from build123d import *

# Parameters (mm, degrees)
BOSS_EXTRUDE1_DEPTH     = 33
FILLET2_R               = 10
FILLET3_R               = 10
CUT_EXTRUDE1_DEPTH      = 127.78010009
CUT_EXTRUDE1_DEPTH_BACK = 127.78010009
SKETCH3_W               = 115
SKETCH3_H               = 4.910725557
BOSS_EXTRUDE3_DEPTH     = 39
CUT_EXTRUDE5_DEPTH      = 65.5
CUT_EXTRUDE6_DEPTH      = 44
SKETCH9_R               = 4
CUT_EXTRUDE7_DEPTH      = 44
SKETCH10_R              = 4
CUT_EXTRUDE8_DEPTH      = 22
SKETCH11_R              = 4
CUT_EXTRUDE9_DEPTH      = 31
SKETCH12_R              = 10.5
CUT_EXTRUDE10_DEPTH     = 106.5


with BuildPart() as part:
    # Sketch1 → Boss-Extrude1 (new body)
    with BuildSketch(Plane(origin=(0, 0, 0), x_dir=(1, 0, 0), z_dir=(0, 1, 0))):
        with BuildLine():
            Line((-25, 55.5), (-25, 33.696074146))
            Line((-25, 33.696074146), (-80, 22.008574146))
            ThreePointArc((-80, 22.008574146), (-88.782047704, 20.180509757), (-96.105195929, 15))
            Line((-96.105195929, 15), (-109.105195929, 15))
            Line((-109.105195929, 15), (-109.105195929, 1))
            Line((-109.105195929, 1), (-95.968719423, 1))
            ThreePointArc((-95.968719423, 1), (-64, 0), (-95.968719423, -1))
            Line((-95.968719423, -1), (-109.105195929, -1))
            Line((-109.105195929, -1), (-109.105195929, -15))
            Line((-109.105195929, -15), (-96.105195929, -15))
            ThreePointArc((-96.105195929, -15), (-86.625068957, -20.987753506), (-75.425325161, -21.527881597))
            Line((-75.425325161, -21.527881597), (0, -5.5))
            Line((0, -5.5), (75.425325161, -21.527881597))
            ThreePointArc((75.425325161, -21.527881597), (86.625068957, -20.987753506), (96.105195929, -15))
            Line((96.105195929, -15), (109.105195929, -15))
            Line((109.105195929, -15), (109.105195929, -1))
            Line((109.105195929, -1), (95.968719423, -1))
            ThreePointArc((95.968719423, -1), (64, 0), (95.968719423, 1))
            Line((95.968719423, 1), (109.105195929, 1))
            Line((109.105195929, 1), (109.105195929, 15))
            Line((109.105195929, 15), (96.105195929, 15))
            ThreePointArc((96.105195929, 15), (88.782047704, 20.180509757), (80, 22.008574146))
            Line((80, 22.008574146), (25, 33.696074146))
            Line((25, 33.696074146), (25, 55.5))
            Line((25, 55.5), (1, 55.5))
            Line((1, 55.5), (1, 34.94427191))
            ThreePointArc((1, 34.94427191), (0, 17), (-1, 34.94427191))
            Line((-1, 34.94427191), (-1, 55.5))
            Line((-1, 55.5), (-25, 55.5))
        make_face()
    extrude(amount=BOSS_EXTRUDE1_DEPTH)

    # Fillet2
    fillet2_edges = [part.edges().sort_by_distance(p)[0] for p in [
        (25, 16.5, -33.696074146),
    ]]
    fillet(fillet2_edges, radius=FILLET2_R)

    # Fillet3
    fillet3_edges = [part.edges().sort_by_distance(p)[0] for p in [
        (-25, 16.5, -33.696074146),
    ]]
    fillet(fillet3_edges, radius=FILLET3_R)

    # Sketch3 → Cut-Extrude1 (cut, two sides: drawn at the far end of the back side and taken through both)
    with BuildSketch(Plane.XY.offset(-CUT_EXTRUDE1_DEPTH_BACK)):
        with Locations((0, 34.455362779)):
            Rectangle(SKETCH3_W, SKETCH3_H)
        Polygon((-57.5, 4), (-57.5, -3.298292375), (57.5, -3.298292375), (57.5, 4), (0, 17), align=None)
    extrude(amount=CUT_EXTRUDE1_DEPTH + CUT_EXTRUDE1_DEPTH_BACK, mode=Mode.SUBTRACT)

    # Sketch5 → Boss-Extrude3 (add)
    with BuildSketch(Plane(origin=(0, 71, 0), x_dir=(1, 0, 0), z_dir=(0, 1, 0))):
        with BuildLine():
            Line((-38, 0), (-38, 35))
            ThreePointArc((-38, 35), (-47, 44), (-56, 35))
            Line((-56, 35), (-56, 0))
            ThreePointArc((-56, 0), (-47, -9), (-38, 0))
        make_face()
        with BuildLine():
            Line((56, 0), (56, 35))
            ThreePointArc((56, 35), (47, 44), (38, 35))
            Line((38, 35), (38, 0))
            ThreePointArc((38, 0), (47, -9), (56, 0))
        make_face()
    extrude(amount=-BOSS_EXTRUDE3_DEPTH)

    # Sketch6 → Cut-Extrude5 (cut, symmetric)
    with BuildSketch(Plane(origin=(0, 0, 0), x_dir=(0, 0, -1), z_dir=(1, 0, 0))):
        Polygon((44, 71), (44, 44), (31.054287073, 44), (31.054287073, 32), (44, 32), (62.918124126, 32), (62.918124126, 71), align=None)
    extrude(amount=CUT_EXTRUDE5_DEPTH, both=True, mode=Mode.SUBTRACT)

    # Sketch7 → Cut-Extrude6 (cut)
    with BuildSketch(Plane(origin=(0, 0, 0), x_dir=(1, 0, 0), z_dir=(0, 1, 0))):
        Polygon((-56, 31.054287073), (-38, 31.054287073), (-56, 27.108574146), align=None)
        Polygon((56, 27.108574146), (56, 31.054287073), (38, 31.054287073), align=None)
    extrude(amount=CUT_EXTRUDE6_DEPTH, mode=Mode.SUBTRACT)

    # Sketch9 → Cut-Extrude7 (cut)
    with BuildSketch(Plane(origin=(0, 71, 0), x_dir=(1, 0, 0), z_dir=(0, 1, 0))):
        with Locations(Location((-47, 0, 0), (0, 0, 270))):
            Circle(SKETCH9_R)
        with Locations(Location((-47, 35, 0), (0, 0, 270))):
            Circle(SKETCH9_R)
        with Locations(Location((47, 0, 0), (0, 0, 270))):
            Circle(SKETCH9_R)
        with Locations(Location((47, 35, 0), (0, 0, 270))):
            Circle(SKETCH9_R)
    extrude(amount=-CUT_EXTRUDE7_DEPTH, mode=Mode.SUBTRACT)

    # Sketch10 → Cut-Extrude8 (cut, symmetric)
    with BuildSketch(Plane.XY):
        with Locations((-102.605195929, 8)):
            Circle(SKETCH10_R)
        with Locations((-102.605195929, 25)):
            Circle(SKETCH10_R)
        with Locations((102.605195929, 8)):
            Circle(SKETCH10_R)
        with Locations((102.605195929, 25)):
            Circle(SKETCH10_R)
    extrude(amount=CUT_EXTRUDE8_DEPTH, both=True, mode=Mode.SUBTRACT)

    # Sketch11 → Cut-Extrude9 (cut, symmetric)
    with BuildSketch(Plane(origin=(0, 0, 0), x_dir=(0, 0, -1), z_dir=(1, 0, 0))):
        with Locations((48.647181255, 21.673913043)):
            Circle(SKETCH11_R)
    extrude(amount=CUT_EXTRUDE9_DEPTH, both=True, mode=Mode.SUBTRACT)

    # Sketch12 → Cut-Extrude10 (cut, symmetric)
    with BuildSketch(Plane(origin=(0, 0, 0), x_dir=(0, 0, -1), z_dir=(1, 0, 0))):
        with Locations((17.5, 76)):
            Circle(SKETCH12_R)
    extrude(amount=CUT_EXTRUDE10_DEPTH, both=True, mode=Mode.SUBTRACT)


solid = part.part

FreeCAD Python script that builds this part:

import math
import FreeCAD as App
import Part
import Sketcher

V = App.Vector


def edges_at(feature, points):
    """Names of the edges that pass closest to the given points."""
    edges = feature.Shape.Edges
    near = lambda p: min(range(len(edges)), key=lambda i: edges[i].distToShape(Part.Vertex(*p))[0])
    return sorted({f"Edge{near(p) + 1}" for p in points})

doc = App.newDocument("Part")
body = doc.addObject("PartDesign::Body", "Body")

# Sketch on XZ plane
sketch1 = doc.addObject("Sketcher::SketchObject", "Sketch")
body.addObject(sketch1)
sketch1.AttachmentSupport = (doc.XZ_Plane, [""])
sketch1.MapMode = "FlatFace"
sketch1.addGeometry([
    Part.LineSegment(V(-25, -55.5, 0), V(-25, -33.696074, 0)),  # 0
    Part.LineSegment(V(-25, -33.696074, 0), V(-80, -22.008574, 0)),  # 1
    Part.ArcOfCircle(Part.Circle(V(-80, 0, 0), V(0, 0, 1), 22.008574), math.radians(-137.034915), math.radians(-90)),  # 2
    Part.LineSegment(V(-96.105196, -15, 0), V(-109.105196, -15, 0)),  # 3
    Part.LineSegment(V(-109.105196, -15, 0), V(-109.105196, -1, 0)),  # 4
    Part.LineSegment(V(-109.105196, -1, 0), V(-95.968719, -1, 0)),  # 5
    Part.ArcOfCircle(Part.Circle(V(-80, 0, 0), V(0, 0, 1), 16), math.radians(-176.416678), math.radians(176.416678)),  # 6
    Part.LineSegment(V(-95.968719, 1, 0), V(-109.105196, 1, 0)),  # 7
    Part.LineSegment(V(-109.105196, 1, 0), V(-109.105196, 15, 0)),  # 8
    Part.LineSegment(V(-109.105196, 15, 0), V(-96.105196, 15, 0)),  # 9
    Part.ArcOfCircle(Part.Circle(V(-80, 0, 0), V(0, 0, 1), 22.008574), math.radians(78.003101), math.radians(137.034915)),  # 10
    Part.LineSegment(V(-75.425325, 21.527882, 0), V(0, 5.5, 0)),  # 11
    Part.LineSegment(V(0, 5.5, 0), V(75.425325, 21.527882, 0)),  # 12
    Part.ArcOfCircle(Part.Circle(V(80, 0, 0), V(0, 0, 1), 22.008574), math.radians(42.965085), math.radians(101.996899)),  # 13
    Part.LineSegment(V(96.105196, 15, 0), V(109.105196, 15, 0)),  # 14
    Part.LineSegment(V(109.105196, 15, 0), V(109.105196, 1, 0)),  # 15
    Part.LineSegment(V(109.105196, 1, 0), V(95.968719, 1, 0)),  # 16
    Part.ArcOfCircle(Part.Circle(V(80, 0, 0), V(0, 0, 1), 16), math.radians(3.583322), math.radians(356.416678)),  # 17
    Part.LineSegment(V(95.968719, -1, 0), V(109.105196, -1, 0)),  # 18
    Part.LineSegment(V(109.105196, -1, 0), V(109.105196, -15, 0)),  # 19
    Part.LineSegment(V(109.105196, -15, 0), V(96.105196, -15, 0)),  # 20
    Part.ArcOfCircle(Part.Circle(V(80, 0, 0), V(0, 0, 1), 22.008574), math.radians(-90), math.radians(-42.965085)),  # 21
    Part.LineSegment(V(80, -22.008574, 0), V(25, -33.696074, 0)),  # 22
    Part.LineSegment(V(25, -33.696074, 0), V(25, -55.5, 0)),  # 23
    Part.LineSegment(V(25, -55.5, 0), V(1, -55.5, 0)),  # 24
    Part.LineSegment(V(1, -55.5, 0), V(1, -34.944272, 0)),  # 25
    Part.ArcOfCircle(Part.Circle(V(0, -26, 0), V(0, 0, 1), 9), math.radians(-83.62063), math.radians(263.62063)),  # 26
    Part.LineSegment(V(-1, -34.944272, 0), V(-1, -55.5, 0)),  # 27
    Part.LineSegment(V(-1, -55.5, 0), V(-25, -55.5, 0)),  # 28
], False)
sketch1.addConstraint([
    Sketcher.Constraint("Coincident", 0, 2, 1, 1),
    Sketcher.Constraint("Coincident", 1, 2, 2, 2),
    Sketcher.Constraint("Coincident", 2, 1, 3, 1),
    Sketcher.Constraint("Coincident", 3, 2, 4, 1),
    Sketcher.Constraint("Coincident", 4, 2, 5, 1),
    Sketcher.Constraint("Coincident", 5, 2, 6, 1),
    Sketcher.Constraint("Coincident", 6, 2, 7, 1),
    Sketcher.Constraint("Coincident", 7, 2, 8, 1),
    Sketcher.Constraint("Coincident", 8, 2, 9, 1),
    Sketcher.Constraint("Coincident", 9, 2, 10, 2),
    Sketcher.Constraint("Tangent", 10, 1, 11, 1),
    Sketcher.Constraint("Coincident", 11, 2, 12, 1),
    Sketcher.Constraint("Tangent", 12, 2, 13, 2),
    Sketcher.Constraint("Coincident", 13, 1, 14, 1),
    Sketcher.Constraint("Coincident", 14, 2, 15, 1),
    Sketcher.Constraint("Coincident", 15, 2, 16, 1),
    Sketcher.Constraint("Coincident", 16, 2, 17, 1),
    Sketcher.Constraint("Coincident", 17, 2, 18, 1),
    Sketcher.Constraint("Coincident", 18, 2, 19, 1),
    Sketcher.Constraint("Coincident", 19, 2, 20, 1),
    Sketcher.Constraint("Coincident", 20, 2, 21, 2),
    Sketcher.Constraint("Coincident", 21, 1, 22, 1),
    Sketcher.Constraint("Coincident", 22, 2, 23, 1),
    Sketcher.Constraint("Coincident", 23, 2, 24, 1),
    Sketcher.Constraint("Coincident", 24, 2, 25, 1),
    Sketcher.Constraint("Coincident", 25, 2, 26, 1),
    Sketcher.Constraint("Coincident", 26, 2, 27, 1),
    Sketcher.Constraint("Coincident", 27, 2, 28, 1),
    Sketcher.Constraint("Coincident", 28, 2, 0, 1),
    Sketcher.Constraint("Vertical", 0),
    Sketcher.Constraint("Horizontal", 3),
    Sketcher.Constraint("Vertical", 4),
    Sketcher.Constraint("Horizontal", 5),
    Sketcher.Constraint("Horizontal", 7),
    Sketcher.Constraint("Vertical", 8),
    Sketcher.Constraint("Horizontal", 9),
    Sketcher.Constraint("Horizontal", 14),
    Sketcher.Constraint("Vertical", 15),
    Sketcher.Constraint("Horizontal", 16),
    Sketcher.Constraint("Horizontal", 18),
    Sketcher.Constraint("Vertical", 19),
    Sketcher.Constraint("Horizontal", 20),
    Sketcher.Constraint("Vertical", 23),
    Sketcher.Constraint("Horizontal", 24),
    Sketcher.Constraint("Vertical", 25),
    Sketcher.Constraint("Vertical", 27),
    Sketcher.Constraint("Horizontal", 28),
    Sketcher.Constraint("Coincident", 6, 3, 2, 3),
    Sketcher.Constraint("Coincident", 10, 3, 2, 3),
    Sketcher.Constraint("Coincident", 17, 3, 13, 3),
    Sketcher.Constraint("Coincident", 21, 3, 13, 3),
    Sketcher.Constraint("Equal", 2, 10),
    Sketcher.Constraint("Equal", 10, 13),
    Sketcher.Constraint("Equal", 6, 17),
    Sketcher.Constraint("Equal", 13, 21),
    Sketcher.Constraint("Symmetric", 2, 3, 13, 3, -1, 1),
    Sketcher.Constraint("Symmetric", 3, 2, 14, 2, -1, 1),
    Sketcher.Constraint("Symmetric", 7, 2, 18, 2, -1, 1),
    Sketcher.Constraint("Symmetric", 10, 1, 12, 2, -2),
    Sketcher.Constraint("Symmetric", 8, 2, 14, 2, -2),
    Sketcher.Constraint("Symmetric", 0, 2, 22, 2, -2),
    Sketcher.Constraint("Symmetric", 25, 2, 26, 2, -2),
    Sketcher.Constraint("Parallel", 1, 11),
    Sketcher.Constraint("Parallel", 12, 22),
    Sketcher.Constraint("Horizontal", 7, 2, 15, 2),
    Sketcher.Constraint("Horizontal", 5, 2, 17, 2),
    Sketcher.Constraint("Horizontal", 3, 2, 19, 2),
    Sketcher.Constraint("Horizontal", 24, 2, 27, 2),
    Sketcher.Constraint("Vertical", 10, 3, 1, 2),
    Sketcher.Constraint("Radius", 6, 16.0),
    Sketcher.Constraint("Radius", 26, 9.0),
    Sketcher.Constraint("DistanceX", 3, 2, 3, 1, 13.0),
    Sketcher.Constraint("DistanceX", 24, 2, 24, 1, 24.0),
    Sketcher.Constraint("DistanceY", 4, 1, 4, 2, 14.0),
    Sketcher.Constraint("DistanceX", 2, 3, -1, 1, 80.0),
    Sketcher.Constraint("DistanceY", 26, 3, -1, 1, 26.0),
    Sketcher.Constraint("DistanceX", 0, 2, -1, 1, 25.0),
    Sketcher.Constraint("DistanceY", 2, 1, -1, 1, 15.0),
    Sketcher.Constraint("DistanceY", 23, 2, 11, 2, 61.0),
    Sketcher.Constraint("DistanceY", -1, 1, 11, 2, 5.5),
    Sketcher.Constraint("Radius", 2, 22.008574),
])
pad1 = doc.addObject("PartDesign::Pad", "Pad")
body.addObject(pad1)
pad1.Profile = sketch1
pad1.Length = 33
pad1.Reversed = True
doc.recompute()

fillet = doc.addObject("PartDesign::Fillet", "Fillet")
body.addObject(fillet)
fillet.Base = (pad1, edges_at(pad1, [(25, 16.5, -33.696)]))
fillet.Radius = 10
doc.recompute()

fillet2 = doc.addObject("PartDesign::Fillet", "Fillet001")
body.addObject(fillet2)
fillet2.Base = (fillet, edges_at(fillet, [(-25, 16.5, -33.696)]))
fillet2.Radius = 10

# Sketch on XY plane
sketch2 = doc.addObject("Sketcher::SketchObject", "Sketch001")
body.addObject(sketch2)
sketch2.AttachmentSupport = (doc.XY_Plane, [""])
sketch2.MapMode = "FlatFace"
sketch2.addGeometry([
    Part.LineSegment(V(-57.5, 36.910726, 0), V(-57.5, 32, 0)),  # 0
    Part.LineSegment(V(-57.5, 32, 0), V(57.5, 32, 0)),  # 1
    Part.LineSegment(V(57.5, 32, 0), V(57.5, 36.910726, 0)),  # 2
    Part.LineSegment(V(57.5, 36.910726, 0), V(-57.5, 36.910726, 0)),  # 3
    Part.LineSegment(V(-57.5, 4, 0), V(-57.5, -3.298292, 0)),  # 4
    Part.LineSegment(V(-57.5, -3.298292, 0), V(57.5, -3.298292, 0)),  # 5
    Part.LineSegment(V(57.5, -3.298292, 0), V(57.5, 4, 0)),  # 6
    Part.LineSegment(V(57.5, 4, 0), V(0, 17, 0)),  # 7
    Part.LineSegment(V(0, 17, 0), V(-57.5, 4, 0)),  # 8
], False)
sketch2.addConstraint([
    Sketcher.Constraint("Coincident", 0, 2, 1, 1),
    Sketcher.Constraint("Coincident", 1, 2, 2, 1),
    Sketcher.Constraint("Coincident", 2, 2, 3, 1),
    Sketcher.Constraint("Coincident", 3, 2, 0, 1),
    Sketcher.Constraint("Coincident", 4, 2, 5, 1),
    Sketcher.Constraint("Coincident", 5, 2, 6, 1),
    Sketcher.Constraint("Coincident", 6, 2, 7, 1),
    Sketcher.Constraint("Coincident", 7, 2, 8, 1),
    Sketcher.Constraint("Coincident", 8, 2, 4, 1),
    Sketcher.Constraint("Vertical", 0),
    Sketcher.Constraint("Horizontal", 1),
    Sketcher.Constraint("Vertical", 2),
    Sketcher.Constraint("Horizontal", 3),
    Sketcher.Constraint("Vertical", 4),
    Sketcher.Constraint("Horizontal", 5),
    Sketcher.Constraint("Vertical", 6),
    Sketcher.Constraint("Symmetric", 6, 2, 8, 2, -2),
    Sketcher.Constraint("PointOnObject", 7, 2, -2),
    Sketcher.Constraint("Vertical", 3, 2, 4, 2),
    Sketcher.Constraint("Vertical", 2, 2, 5, 2),
    Sketcher.Constraint("DistanceX", 1, 1, 1, 2, 115.0),
    Sketcher.Constraint("DistanceY", -1, 1, 0, 2, 32.0),
    Sketcher.Constraint("DistanceY", -1, 1, 6, 2, 4.0),
    Sketcher.Constraint("DistanceY", -1, 1, 7, 2, 17.0),
    Sketcher.Constraint("DistanceY", 0, 2, 0, 1, 4.910726),
    Sketcher.Constraint("DistanceY", 4, 2, 4, 1, 7.298292),
])
pocket1 = doc.addObject("PartDesign::Pocket", "Pocket")
body.addObject(pocket1)
pocket1.Profile = sketch2
pocket1.Type = "ThroughAll"
pocket1.Midplane = True

# Sketch on XZ plane
sketch3 = doc.addObject("Sketcher::SketchObject", "Sketch002")
body.addObject(sketch3)
sketch3.AttachmentSupport = (doc.XZ_Plane, [""])
sketch3.MapMode = "FlatFace"
sketch3.AttachmentOffset = App.Placement(V(0, 0, -71), App.Rotation())
sketch3.addGeometry([
    Part.LineSegment(V(-38, 0, 0), V(-38, -35, 0)),  # 0
    Part.ArcOfCircle(Part.Circle(V(-47, -35, 0), V(0, 0, 1), 9), math.radians(180), math.radians(360)),  # 1
    Part.LineSegment(V(-56, -35, 0), V(-56, 0, 0)),  # 2
    Part.ArcOfCircle(Part.Circle(V(-47, 0, 0), V(0, 0, 1), 9), math.radians(0), math.radians(180)),  # 3
    Part.LineSegment(V(56, 0, 0), V(56, -35, 0)),  # 4
    Part.ArcOfCircle(Part.Circle(V(47, -35, 0), V(0, 0, 1), 9), math.radians(180), math.radians(360)),  # 5
    Part.LineSegment(V(38, -35, 0), V(38, 0, 0)),  # 6
    Part.ArcOfCircle(Part.Circle(V(47, 0, 0), V(0, 0, 1), 9), math.radians(0), math.radians(180)),  # 7
], False)
sketch3.addConstraint([
    Sketcher.Constraint("Tangent", 0, 2, 1, 2),
    Sketcher.Constraint("Tangent", 1, 1, 2, 1),
    Sketcher.Constraint("Tangent", 2, 2, 3, 2),
    Sketcher.Constraint("Tangent", 3, 1, 0, 1),
    Sketcher.Constraint("Tangent", 4, 2, 5, 2),
    Sketcher.Constraint("Tangent", 5, 1, 6, 1),
    Sketcher.Constraint("Tangent", 6, 2, 7, 2),
    Sketcher.Constraint("Tangent", 7, 1, 4, 1),
    Sketcher.Constraint("Vertical", 0),
    Sketcher.Constraint("Vertical", 2),
    Sketcher.Constraint("Vertical", 4),
    Sketcher.Constraint("Vertical", 6),
    Sketcher.Constraint("Equal", 3, 5),
    Sketcher.Constraint("Symmetric", 3, 3, 7, 3, -1, 1),
    Sketcher.Constraint("PointOnObject", 3, 3, -1),
    Sketcher.Constraint("Horizontal", 1, 3, 5, 3),
    Sketcher.Constraint("Radius", 1, 9.0),
    Sketcher.Constraint("DistanceY", 0, 2, 0, 1, 35.0),
    Sketcher.Constraint("DistanceX", 1, 3, -1, 1, 47.0),
])
pad2 = doc.addObject("PartDesign::Pad", "Pad001")
body.addObject(pad2)
pad2.Profile = sketch3
pad2.Length = 39

# Sketch on YZ plane
sketch4 = doc.addObject("Sketcher::SketchObject", "Sketch003")
body.addObject(sketch4)
sketch4.AttachmentSupport = (doc.YZ_Plane, [""])
sketch4.MapMode = "FlatFace"
sketch4.addGeometry([
    Part.LineSegment(V(71, -44, 0), V(44, -44, 0)),  # 0
    Part.LineSegment(V(44, -44, 0), V(44, -31.054287, 0)),  # 1
    Part.LineSegment(V(44, -31.054287, 0), V(32, -31.054287, 0)),  # 2
    Part.LineSegment(V(32, -31.054287, 0), V(32, -62.918124, 0)),  # 3
    Part.LineSegment(V(32, -62.918124, 0), V(71, -62.918124, 0)),  # 4
    Part.LineSegment(V(71, -62.918124, 0), V(71, -44, 0)),  # 5
], False)
sketch4.addConstraint([
    Sketcher.Constraint("Coincident", 0, 2, 1, 1),
    Sketcher.Constraint("Coincident", 1, 2, 2, 1),
    Sketcher.Constraint("Coincident", 2, 2, 3, 1),
    Sketcher.Constraint("Coincident", 3, 2, 4, 1),
    Sketcher.Constraint("Coincident", 4, 2, 5, 1),
    Sketcher.Constraint("Coincident", 5, 2, 0, 1),
    Sketcher.Constraint("Horizontal", 0),
    Sketcher.Constraint("Vertical", 1),
    Sketcher.Constraint("Horizontal", 2),
    Sketcher.Constraint("Vertical", 3),
    Sketcher.Constraint("Horizontal", 4),
    Sketcher.Constraint("Vertical", 5),
    Sketcher.Constraint("DistanceX", 0, 2, 0, 1, 27.0),
    Sketcher.Constraint("DistanceX", 2, 2, 2, 1, 12.0),
    Sketcher.Constraint("DistanceX", -1, 1, 0, 2, 44.0),
    Sketcher.Constraint("DistanceY", 0, 2, -1, 1, 44.0),
    Sketcher.Constraint("DistanceY", 1, 1, 1, 2, 12.945713),
    Sketcher.Constraint("DistanceY", 3, 2, 3, 1, 31.863837),
])
pocket2 = doc.addObject("PartDesign::Pocket", "Pocket001")
body.addObject(pocket2)
pocket2.Profile = sketch4
pocket2.Length = 131
pocket2.Midplane = True

# Sketch on XZ plane
sketch5 = doc.addObject("Sketcher::SketchObject", "Sketch004")
body.addObject(sketch5)
sketch5.AttachmentSupport = (doc.XZ_Plane, [""])
sketch5.MapMode = "FlatFace"
sketch5.addGeometry([
    Part.LineSegment(V(-38, -31.054287, 0), V(-56, -31.054287, 0)),  # 0
    Part.LineSegment(V(-56, -31.054287, 0), V(-56, -27.108574, 0)),  # 1
    Part.LineSegment(V(-56, -27.108574, 0), V(-38, -31.054287, 0)),  # 2
    Part.LineSegment(V(56, -27.108574, 0), V(56, -31.054287, 0)),  # 3
    Part.LineSegment(V(56, -31.054287, 0), V(38, -31.054287, 0)),  # 4
    Part.LineSegment(V(38, -31.054287, 0), V(56, -27.108574, 0)),  # 5
], False)
sketch5.addConstraint([
    Sketcher.Constraint("Coincident", 0, 2, 1, 1),
    Sketcher.Constraint("Coincident", 1, 2, 2, 1),
    Sketcher.Constraint("Coincident", 2, 2, 0, 1),
    Sketcher.Constraint("Coincident", 3, 2, 4, 1),
    Sketcher.Constraint("Coincident", 4, 2, 5, 1),
    Sketcher.Constraint("Coincident", 5, 2, 3, 1),
    Sketcher.Constraint("Horizontal", 0),
    Sketcher.Constraint("Vertical", 1),
    Sketcher.Constraint("Vertical", 3),
    Sketcher.Constraint("Horizontal", 4),
    Sketcher.Constraint("Symmetric", 0, 2, 3, 2, -2),
    Sketcher.Constraint("Horizontal", 1, 2, 5, 2),
    Sketcher.Constraint("Equal", 0, 4),
    Sketcher.Constraint("DistanceX", 0, 2, 0, 1, 18.0),
    Sketcher.Constraint("DistanceX", 0, 2, -1, 1, 56.0),
    Sketcher.Constraint("Distance", 2, 18.427389),
    Sketcher.Constraint("DistanceY", 0, 2, -1, 1, 31.054287),
])
pocket3 = doc.addObject("PartDesign::Pocket", "Pocket002")
body.addObject(pocket3)
pocket3.Profile = sketch5
pocket3.Length = 44

# Sketch on XZ plane
sketch6 = doc.addObject("Sketcher::SketchObject", "Sketch005")
body.addObject(sketch6)
sketch6.AttachmentSupport = (doc.XZ_Plane, [""])
sketch6.MapMode = "FlatFace"
sketch6.AttachmentOffset = App.Placement(V(0, 0, -71), App.Rotation())
sketch6.addGeometry([
    Part.Circle(V(-47, 0, 0), V(0, 0, 1), 4),
    Part.Circle(V(-47, -35, 0), V(0, 0, 1), 4),
    Part.Circle(V(47, 0, 0), V(0, 0, 1), 4),
    Part.Circle(V(47, -35, 0), V(0, 0, 1), 4),
], False)
sketch6.addConstraint([
    Sketcher.Constraint("Equal", 0, 1),
    Sketcher.Constraint("Equal", 1, 2),
    Sketcher.Constraint("Equal", 2, 3),
    Sketcher.Constraint("Symmetric", 0, 3, 2, 3, -1, 1),
    Sketcher.Constraint("Symmetric", 1, 3, 3, 3, -2),
    Sketcher.Constraint("PointOnObject", 0, 3, -1),
    Sketcher.Constraint("Vertical", 0, 3, 1, 3),
    Sketcher.Constraint("Diameter", 0, 8.0),
    Sketcher.Constraint("DistanceX", 0, 3, -1, 1, 47.0),
    Sketcher.Constraint("DistanceY", 1, 3, -1, 1, 35.0),
])
pocket4 = doc.addObject("PartDesign::Pocket", "Pocket003")
body.addObject(pocket4)
pocket4.Profile = sketch6
pocket4.Length = 44
pocket4.Reversed = True

# Sketch on XY plane
sketch7 = doc.addObject("Sketcher::SketchObject", "Sketch006")
body.addObject(sketch7)
sketch7.AttachmentSupport = (doc.XY_Plane, [""])
sketch7.MapMode = "FlatFace"
sketch7.addGeometry([
    Part.Circle(V(-102.605196, 8, 0), V(0, 0, 1), 4),
    Part.Circle(V(-102.605196, 25, 0), V(0, 0, 1), 4),
    Part.Circle(V(102.605196, 8, 0), V(0, 0, 1), 4),
    Part.Circle(V(102.605196, 25, 0), V(0, 0, 1), 4),
], False)
sketch7.addConstraint([
    Sketcher.Constraint("Equal", 0, 1),
    Sketcher.Constraint("Equal", 1, 2),
    Sketcher.Constraint("Equal", 2, 3),
    Sketcher.Constraint("Symmetric", 0, 3, 2, 3, -2),
    Sketcher.Constraint("Symmetric", 1, 3, 3, 3, -2),
    Sketcher.Constraint("Vertical", 0, 3, 1, 3),
    Sketcher.Constraint("Diameter", 0, 8.0),
    Sketcher.Constraint("DistanceY", -1, 1, 0, 3, 8.0),
    Sketcher.Constraint("DistanceY", -1, 1, 1, 3, 25.0),
    Sketcher.Constraint("DistanceX", 0, 3, 2, 3, 205.210392),
])
pocket5 = doc.addObject("PartDesign::Pocket", "Pocket004")
body.addObject(pocket5)
pocket5.Profile = sketch7
pocket5.Length = 44
pocket5.Midplane = True

# Sketch on YZ plane
sketch8 = doc.addObject("Sketcher::SketchObject", "Sketch007")
body.addObject(sketch8)
sketch8.AttachmentSupport = (doc.YZ_Plane, [""])
sketch8.MapMode = "FlatFace"
sketch8.addGeometry(Part.Circle(V(21.673913, -48.647181, 0), V(0, 0, 1), 4), False)
sketch8.addConstraint([
    Sketcher.Constraint("Diameter", 0, 8.0),
    Sketcher.Constraint("DistanceY", 0, 3, -1, 1, 48.647181),
    Sketcher.Constraint("DistanceX", -1, 1, 0, 3, 21.673913),
])
pocket6 = doc.addObject("PartDesign::Pocket", "Pocket005")
body.addObject(pocket6)
pocket6.Profile = sketch8
pocket6.Length = 62
pocket6.Midplane = True

# Sketch on YZ plane
sketch9 = doc.addObject("Sketcher::SketchObject", "Sketch008")
body.addObject(sketch9)
sketch9.AttachmentSupport = (doc.YZ_Plane, [""])
sketch9.MapMode = "FlatFace"
sketch9.addGeometry(Part.Circle(V(76, -17.5, 0), V(0, 0, 1), 10.5), False)
sketch9.addConstraint([
    Sketcher.Constraint("Diameter", 0, 21.0),
    Sketcher.Constraint("DistanceX", -1, 1, 0, 3, 76.0),
    Sketcher.Constraint("DistanceY", 0, 3, -1, 1, 17.5),
])
pocket7 = doc.addObject("PartDesign::Pocket", "Pocket006")
body.addObject(pocket7)
pocket7.Profile = sketch9
pocket7.Length = 213
pocket7.Midplane = True

doc.recompute()
